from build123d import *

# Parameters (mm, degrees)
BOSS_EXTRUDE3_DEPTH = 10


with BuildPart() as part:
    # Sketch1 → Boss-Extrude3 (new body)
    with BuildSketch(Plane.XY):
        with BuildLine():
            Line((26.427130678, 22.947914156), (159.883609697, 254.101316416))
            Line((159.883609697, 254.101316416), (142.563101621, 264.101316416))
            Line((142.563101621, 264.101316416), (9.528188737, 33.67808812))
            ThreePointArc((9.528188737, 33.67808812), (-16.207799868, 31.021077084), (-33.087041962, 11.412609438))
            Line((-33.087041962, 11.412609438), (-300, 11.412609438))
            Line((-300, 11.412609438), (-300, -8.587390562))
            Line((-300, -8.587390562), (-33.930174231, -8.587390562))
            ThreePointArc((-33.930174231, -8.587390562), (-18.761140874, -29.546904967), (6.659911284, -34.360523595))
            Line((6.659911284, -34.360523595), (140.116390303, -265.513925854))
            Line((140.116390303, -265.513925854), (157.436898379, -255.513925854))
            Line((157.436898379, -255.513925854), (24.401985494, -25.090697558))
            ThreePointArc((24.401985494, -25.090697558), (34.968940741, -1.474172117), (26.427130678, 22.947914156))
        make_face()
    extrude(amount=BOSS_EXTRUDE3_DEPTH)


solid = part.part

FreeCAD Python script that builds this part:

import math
import FreeCAD as App
import Part
import Sketcher
Q = App.Units.Quantity

doc = App.newDocument("Part")
params = doc.addObject("Spreadsheet::Sheet", "Params")
for row, (alias, value) in enumerate([
    ("sketch1_radius", "35 mm"),
    ("sketch1_height", "20 mm"),
    ("sketch1_length", "20 mm"),
    ("pad1_length", "10 mm"),
], start=1):
    params.set(f"A{row}", alias)
    params.set(f"B{row}", "=" + value)
    params.setAlias(f"B{row}", alias)

body = doc.addObject("PartDesign::Body", "Body")

# Sketch on XY plane
sketch1 = body.newObject("Sketcher::SketchObject", "Sketch")
sketch1.AttachmentSupport = (doc.getObject("XY_Plane"), [""])
sketch1.MapMode = "FlatFace"
sketch1.addGeometry(Part.LineSegment(App.Vector(26, 23, 0), App.Vector(160, 254, 0)), False)
sketch1.addGeometry(Part.LineSegment(App.Vector(160, 254, 0), App.Vector(143, 264, 0)), False)
sketch1.addGeometry(Part.LineSegment(App.Vector(143, 264, 0), App.Vector(10, 34, 0)), False)
sketch1.addGeometry(Part.ArcOfCircle(Part.Circle(App.Vector(0, 0, 0), App.Vector(0, 0, 1), 35), math.radians(74), math.radians(161)), False)
sketch1.addGeometry(Part.LineSegment(App.Vector(-33, 11, 0), App.Vector(-300, 11, 0)), False)
sketch1.addGeometry(Part.LineSegment(App.Vector(-300, 11, 0), App.Vector(-300, -9, 0)), False)
sketch1.addGeometry(Part.LineSegment(App.Vector(-300, -9, 0), App.Vector(-34, -9, 0)), False)
sketch1.addGeometry(Part.ArcOfCircle(Part.Circle(App.Vector(0, 0, 0), App.Vector(0, 0, 1), 35), math.radians(-166), math.radians(-79)), False)
sketch1.addGeometry(Part.LineSegment(App.Vector(7, -34, 0), App.Vector(140, -266, 0)), False)
sketch1.addGeometry(Part.LineSegment(App.Vector(140, -266, 0), App.Vector(157, -256, 0)), False)
sketch1.addGeometry(Part.LineSegment(App.Vector(157, -256, 0), App.Vector(24, -25, 0)), False)
sketch1.addGeometry(Part.ArcOfCircle(Part.Circle(App.Vector(0, 0, 0), App.Vector(0, 0, 1), 35), math.radians(-46), math.radians(41)), False)
sketch1.addConstraint(Sketcher.Constraint("Coincident", 0, 2, 1, 1))
sketch1.addConstraint(Sketcher.Constraint("Coincident", 1, 2, 2, 1))
sketch1.addConstraint(Sketcher.Constraint("Coincident", 2, 2, 3, 1))
sketch1.addConstraint(Sketcher.Constraint("Coincident", 3, 2, 4, 1))
sketch1.addConstraint(Sketcher.Constraint("Coincident", 4, 2, 5, 1))
sketch1.addConstraint(Sketcher.Constraint("Coincident", 5, 2, 6, 1))
sketch1.addConstraint(Sketcher.Constraint("Coincident", 6, 2, 7, 1))
sketch1.addConstraint(Sketcher.Constraint("Coincident", 7, 2, 8, 1))
sketch1.addConstraint(Sketcher.Constraint("Coincident", 8, 2, 9, 1))
sketch1.addConstraint(Sketcher.Constraint("Coincident", 9, 2, 10, 1))
sketch1.addConstraint(Sketcher.Constraint("Coincident", 10, 2, 11, 1))
sketch1.addConstraint(Sketcher.Constraint("Coincident", 11, 2, 0, 1))
sketch1.addConstraint(Sketcher.Constraint("Horizontal", 4))
sketch1.addConstraint(Sketcher.Constraint("Vertical", 5))
sketch1.addConstraint(Sketcher.Constraint("Horizontal", 6))
sketch1.addConstraint(Sketcher.Constraint("Coincident", 3, 3, -1, 1))
sketch1.addConstraint(Sketcher.Constraint("Coincident", 7, 3, -1, 1))
sketch1.addConstraint(Sketcher.Constraint("Coincident", 11, 3, -1, 1))
sketch1.addConstraint(Sketcher.Constraint("Equal", 3, 7))
sketch1.addConstraint(Sketcher.Constraint("Equal", 7, 11))
sketch1.addConstraint(Sketcher.Constraint("Perpendicular", 0, 1))
sketch1.addConstraint(Sketcher.Constraint("Perpendicular", 1, 2))
sketch1.addConstraint(Sketcher.Constraint("Perpendicular", 8, 9))
sketch1.addConstraint(Sketcher.Constraint("Perpendicular", 9, 10))
sketch1.addConstraint(Sketcher.Constraint("Equal", 0, 8))
sketch1.addConstraint(Sketcher.Constraint("Equal", 1, 9))
sketch1.addConstraint(Sketcher.Constraint("Equal", 2, 10))
sketch1.addConstraint(Sketcher.Constraint("Radius", 3, Q("35 mm")))
sketch1.addConstraint(Sketcher.Constraint("DistanceY", 5, 2, 5, 1, Q("20 mm")))
sketch1.addConstraint(Sketcher.Constraint("Angle", 0, Q("60 deg")))
sketch1.addConstraint(Sketcher.Constraint("Angle", 8, Q("-60 deg")))
sketch1.addConstraint(Sketcher.Constraint("Distance", 1, Q("20 mm")))
sketch1.addConstraint(Sketcher.Constraint("DistanceX", 4, 2, -1, 1, Q("300 mm")))
sketch1.addConstraint(Sketcher.Constraint("DistanceX", 4, 2, 4, 1, Q("266.912958 mm")))
sketch1.addConstraint(Sketcher.Constraint("DistanceX", -1, 1, 1, 2, Q("142.563102 mm")))
sketch1.addConstraint(Sketcher.Constraint("DistanceX", -1, 1, 9, 2, Q("157.436898 mm")))
sketch1.setExpression("Constraints[27]", "Params.sketch1_radius")
sketch1.setExpression("Constraints[28]", "Params.sketch1_height")
sketch1.setExpression("Constraints[31]", "Params.sketch1_length")
pad1 = body.newObject("PartDesign::Pad", "Pad")
pad1.Profile = sketch1
pad1.setExpression("Length", "Params.pad1_length")

doc.recompute()
